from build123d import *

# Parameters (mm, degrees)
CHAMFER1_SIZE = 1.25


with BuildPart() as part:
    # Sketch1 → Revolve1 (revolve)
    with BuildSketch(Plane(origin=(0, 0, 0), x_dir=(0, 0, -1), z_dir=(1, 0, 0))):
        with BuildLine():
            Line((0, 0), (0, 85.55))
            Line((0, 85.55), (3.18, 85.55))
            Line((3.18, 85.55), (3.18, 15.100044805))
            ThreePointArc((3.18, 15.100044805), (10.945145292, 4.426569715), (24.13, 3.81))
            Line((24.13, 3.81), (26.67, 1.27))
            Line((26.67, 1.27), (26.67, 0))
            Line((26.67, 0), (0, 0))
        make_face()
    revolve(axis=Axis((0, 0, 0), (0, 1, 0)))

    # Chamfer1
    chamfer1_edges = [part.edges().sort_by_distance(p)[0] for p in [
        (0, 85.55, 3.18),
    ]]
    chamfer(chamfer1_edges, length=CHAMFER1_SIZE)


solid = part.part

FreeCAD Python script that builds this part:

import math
import FreeCAD as App
import Part
import Sketcher

V = App.Vector
Q = App.Units.Quantity


def edges_at(feature, points):
    """Names of the edges that pass closest to the given points."""
    edges = feature.Shape.Edges
    near = lambda p: min(range(len(edges)), key=lambda i: edges[i].distToShape(Part.Vertex(*p))[0])
    return sorted({f"Edge{near(p) + 1}" for p in points})

doc = App.newDocument("Part")
body = doc.addObject("PartDesign::Body", "Body")

sketch1 = body.newObject("Sketcher::SketchObject", "Sketch")
sketch1.AttachmentSupport = (doc.getObject("YZ_Plane"), [""])
sketch1.MapMode = "FlatFace"
sketch1.addGeometry([
    Part.LineSegment(V(85.5, 0, 0), V(0, 0, 0)),
    Part.LineSegment(V(0, 0, 0), V(0, -26.7, 0)),
    Part.LineSegment(V(0, -26.7, 0), V(1.3, -26.7, 0)),
    Part.LineSegment(V(1.3, -26.7, 0), V(3.8, -24.1, 0)),
    Part.ArcOfCircle(Part.Circle(V(17.9, -18.2, 0), V(0, 0, 1), 15.2), math.radians(100), math.radians(203)),
    Part.LineSegment(V(15.1, -3.2, 0), V(85.5, -3.2, 0)),
    Part.LineSegment(V(85.5, -3.2, 0), V(85.5, 0, 0)),
], False)
sketch1.addConstraint([
    Sketcher.Constraint("Coincident", 0, 2, 1, 1),
    Sketcher.Constraint("Coincident", 1, 2, 2, 1),
    Sketcher.Constraint("Coincident", 2, 2, 3, 1),
    Sketcher.Constraint("Coincident", 3, 2, 4, 2),
    Sketcher.Constraint("Coincident", 4, 1, 5, 1),
    Sketcher.Constraint("Coincident", 5, 2, 6, 1),
    Sketcher.Constraint("Coincident", 6, 2, 0, 1),
    Sketcher.Constraint("Horizontal", 0),
    Sketcher.Constraint("Vertical", 1),
    Sketcher.Constraint("Horizontal", 2),
    Sketcher.Constraint("Horizontal", 5),
    Sketcher.Constraint("Vertical", 6),
    Sketcher.Constraint("Coincident", 0, 2, -1, 1),
    Sketcher.Constraint("Angle", 3, Q("45 deg")),
    Sketcher.Constraint("DistanceX", 2, 1, 2, 2, Q("0.05 in")),
    Sketcher.Constraint("DistanceY", 1, 2, 1, 1, Q("1.05 in")),
    Sketcher.Constraint("DistanceX", 2, 2, 3, 2, Q("0.1 in")),
    Sketcher.Constraint("Radius", 4, 15.25),
    Sketcher.Constraint("DistanceX", 0, 2, 0, 1, 85.55),
    Sketcher.Constraint("DistanceY", 6, 1, 6, 2, 3.18),
    Sketcher.Constraint("DistanceX", 5, 1, 5, 2, 70.449955),
])
revolution = body.newObject("PartDesign::Revolution", "Revolution")
revolution.Profile = sketch1
revolution.ReferenceAxis = (sketch1, ["H_Axis"])
revolution.Angle = 360
doc.recompute()

chamfer = body.newObject("PartDesign::Chamfer", "Chamfer")
chamfer.Base = (revolution, edges_at(revolution, [(0, 85.55, 3.18)]))
chamfer.Size = 1.25

doc.recompute()
